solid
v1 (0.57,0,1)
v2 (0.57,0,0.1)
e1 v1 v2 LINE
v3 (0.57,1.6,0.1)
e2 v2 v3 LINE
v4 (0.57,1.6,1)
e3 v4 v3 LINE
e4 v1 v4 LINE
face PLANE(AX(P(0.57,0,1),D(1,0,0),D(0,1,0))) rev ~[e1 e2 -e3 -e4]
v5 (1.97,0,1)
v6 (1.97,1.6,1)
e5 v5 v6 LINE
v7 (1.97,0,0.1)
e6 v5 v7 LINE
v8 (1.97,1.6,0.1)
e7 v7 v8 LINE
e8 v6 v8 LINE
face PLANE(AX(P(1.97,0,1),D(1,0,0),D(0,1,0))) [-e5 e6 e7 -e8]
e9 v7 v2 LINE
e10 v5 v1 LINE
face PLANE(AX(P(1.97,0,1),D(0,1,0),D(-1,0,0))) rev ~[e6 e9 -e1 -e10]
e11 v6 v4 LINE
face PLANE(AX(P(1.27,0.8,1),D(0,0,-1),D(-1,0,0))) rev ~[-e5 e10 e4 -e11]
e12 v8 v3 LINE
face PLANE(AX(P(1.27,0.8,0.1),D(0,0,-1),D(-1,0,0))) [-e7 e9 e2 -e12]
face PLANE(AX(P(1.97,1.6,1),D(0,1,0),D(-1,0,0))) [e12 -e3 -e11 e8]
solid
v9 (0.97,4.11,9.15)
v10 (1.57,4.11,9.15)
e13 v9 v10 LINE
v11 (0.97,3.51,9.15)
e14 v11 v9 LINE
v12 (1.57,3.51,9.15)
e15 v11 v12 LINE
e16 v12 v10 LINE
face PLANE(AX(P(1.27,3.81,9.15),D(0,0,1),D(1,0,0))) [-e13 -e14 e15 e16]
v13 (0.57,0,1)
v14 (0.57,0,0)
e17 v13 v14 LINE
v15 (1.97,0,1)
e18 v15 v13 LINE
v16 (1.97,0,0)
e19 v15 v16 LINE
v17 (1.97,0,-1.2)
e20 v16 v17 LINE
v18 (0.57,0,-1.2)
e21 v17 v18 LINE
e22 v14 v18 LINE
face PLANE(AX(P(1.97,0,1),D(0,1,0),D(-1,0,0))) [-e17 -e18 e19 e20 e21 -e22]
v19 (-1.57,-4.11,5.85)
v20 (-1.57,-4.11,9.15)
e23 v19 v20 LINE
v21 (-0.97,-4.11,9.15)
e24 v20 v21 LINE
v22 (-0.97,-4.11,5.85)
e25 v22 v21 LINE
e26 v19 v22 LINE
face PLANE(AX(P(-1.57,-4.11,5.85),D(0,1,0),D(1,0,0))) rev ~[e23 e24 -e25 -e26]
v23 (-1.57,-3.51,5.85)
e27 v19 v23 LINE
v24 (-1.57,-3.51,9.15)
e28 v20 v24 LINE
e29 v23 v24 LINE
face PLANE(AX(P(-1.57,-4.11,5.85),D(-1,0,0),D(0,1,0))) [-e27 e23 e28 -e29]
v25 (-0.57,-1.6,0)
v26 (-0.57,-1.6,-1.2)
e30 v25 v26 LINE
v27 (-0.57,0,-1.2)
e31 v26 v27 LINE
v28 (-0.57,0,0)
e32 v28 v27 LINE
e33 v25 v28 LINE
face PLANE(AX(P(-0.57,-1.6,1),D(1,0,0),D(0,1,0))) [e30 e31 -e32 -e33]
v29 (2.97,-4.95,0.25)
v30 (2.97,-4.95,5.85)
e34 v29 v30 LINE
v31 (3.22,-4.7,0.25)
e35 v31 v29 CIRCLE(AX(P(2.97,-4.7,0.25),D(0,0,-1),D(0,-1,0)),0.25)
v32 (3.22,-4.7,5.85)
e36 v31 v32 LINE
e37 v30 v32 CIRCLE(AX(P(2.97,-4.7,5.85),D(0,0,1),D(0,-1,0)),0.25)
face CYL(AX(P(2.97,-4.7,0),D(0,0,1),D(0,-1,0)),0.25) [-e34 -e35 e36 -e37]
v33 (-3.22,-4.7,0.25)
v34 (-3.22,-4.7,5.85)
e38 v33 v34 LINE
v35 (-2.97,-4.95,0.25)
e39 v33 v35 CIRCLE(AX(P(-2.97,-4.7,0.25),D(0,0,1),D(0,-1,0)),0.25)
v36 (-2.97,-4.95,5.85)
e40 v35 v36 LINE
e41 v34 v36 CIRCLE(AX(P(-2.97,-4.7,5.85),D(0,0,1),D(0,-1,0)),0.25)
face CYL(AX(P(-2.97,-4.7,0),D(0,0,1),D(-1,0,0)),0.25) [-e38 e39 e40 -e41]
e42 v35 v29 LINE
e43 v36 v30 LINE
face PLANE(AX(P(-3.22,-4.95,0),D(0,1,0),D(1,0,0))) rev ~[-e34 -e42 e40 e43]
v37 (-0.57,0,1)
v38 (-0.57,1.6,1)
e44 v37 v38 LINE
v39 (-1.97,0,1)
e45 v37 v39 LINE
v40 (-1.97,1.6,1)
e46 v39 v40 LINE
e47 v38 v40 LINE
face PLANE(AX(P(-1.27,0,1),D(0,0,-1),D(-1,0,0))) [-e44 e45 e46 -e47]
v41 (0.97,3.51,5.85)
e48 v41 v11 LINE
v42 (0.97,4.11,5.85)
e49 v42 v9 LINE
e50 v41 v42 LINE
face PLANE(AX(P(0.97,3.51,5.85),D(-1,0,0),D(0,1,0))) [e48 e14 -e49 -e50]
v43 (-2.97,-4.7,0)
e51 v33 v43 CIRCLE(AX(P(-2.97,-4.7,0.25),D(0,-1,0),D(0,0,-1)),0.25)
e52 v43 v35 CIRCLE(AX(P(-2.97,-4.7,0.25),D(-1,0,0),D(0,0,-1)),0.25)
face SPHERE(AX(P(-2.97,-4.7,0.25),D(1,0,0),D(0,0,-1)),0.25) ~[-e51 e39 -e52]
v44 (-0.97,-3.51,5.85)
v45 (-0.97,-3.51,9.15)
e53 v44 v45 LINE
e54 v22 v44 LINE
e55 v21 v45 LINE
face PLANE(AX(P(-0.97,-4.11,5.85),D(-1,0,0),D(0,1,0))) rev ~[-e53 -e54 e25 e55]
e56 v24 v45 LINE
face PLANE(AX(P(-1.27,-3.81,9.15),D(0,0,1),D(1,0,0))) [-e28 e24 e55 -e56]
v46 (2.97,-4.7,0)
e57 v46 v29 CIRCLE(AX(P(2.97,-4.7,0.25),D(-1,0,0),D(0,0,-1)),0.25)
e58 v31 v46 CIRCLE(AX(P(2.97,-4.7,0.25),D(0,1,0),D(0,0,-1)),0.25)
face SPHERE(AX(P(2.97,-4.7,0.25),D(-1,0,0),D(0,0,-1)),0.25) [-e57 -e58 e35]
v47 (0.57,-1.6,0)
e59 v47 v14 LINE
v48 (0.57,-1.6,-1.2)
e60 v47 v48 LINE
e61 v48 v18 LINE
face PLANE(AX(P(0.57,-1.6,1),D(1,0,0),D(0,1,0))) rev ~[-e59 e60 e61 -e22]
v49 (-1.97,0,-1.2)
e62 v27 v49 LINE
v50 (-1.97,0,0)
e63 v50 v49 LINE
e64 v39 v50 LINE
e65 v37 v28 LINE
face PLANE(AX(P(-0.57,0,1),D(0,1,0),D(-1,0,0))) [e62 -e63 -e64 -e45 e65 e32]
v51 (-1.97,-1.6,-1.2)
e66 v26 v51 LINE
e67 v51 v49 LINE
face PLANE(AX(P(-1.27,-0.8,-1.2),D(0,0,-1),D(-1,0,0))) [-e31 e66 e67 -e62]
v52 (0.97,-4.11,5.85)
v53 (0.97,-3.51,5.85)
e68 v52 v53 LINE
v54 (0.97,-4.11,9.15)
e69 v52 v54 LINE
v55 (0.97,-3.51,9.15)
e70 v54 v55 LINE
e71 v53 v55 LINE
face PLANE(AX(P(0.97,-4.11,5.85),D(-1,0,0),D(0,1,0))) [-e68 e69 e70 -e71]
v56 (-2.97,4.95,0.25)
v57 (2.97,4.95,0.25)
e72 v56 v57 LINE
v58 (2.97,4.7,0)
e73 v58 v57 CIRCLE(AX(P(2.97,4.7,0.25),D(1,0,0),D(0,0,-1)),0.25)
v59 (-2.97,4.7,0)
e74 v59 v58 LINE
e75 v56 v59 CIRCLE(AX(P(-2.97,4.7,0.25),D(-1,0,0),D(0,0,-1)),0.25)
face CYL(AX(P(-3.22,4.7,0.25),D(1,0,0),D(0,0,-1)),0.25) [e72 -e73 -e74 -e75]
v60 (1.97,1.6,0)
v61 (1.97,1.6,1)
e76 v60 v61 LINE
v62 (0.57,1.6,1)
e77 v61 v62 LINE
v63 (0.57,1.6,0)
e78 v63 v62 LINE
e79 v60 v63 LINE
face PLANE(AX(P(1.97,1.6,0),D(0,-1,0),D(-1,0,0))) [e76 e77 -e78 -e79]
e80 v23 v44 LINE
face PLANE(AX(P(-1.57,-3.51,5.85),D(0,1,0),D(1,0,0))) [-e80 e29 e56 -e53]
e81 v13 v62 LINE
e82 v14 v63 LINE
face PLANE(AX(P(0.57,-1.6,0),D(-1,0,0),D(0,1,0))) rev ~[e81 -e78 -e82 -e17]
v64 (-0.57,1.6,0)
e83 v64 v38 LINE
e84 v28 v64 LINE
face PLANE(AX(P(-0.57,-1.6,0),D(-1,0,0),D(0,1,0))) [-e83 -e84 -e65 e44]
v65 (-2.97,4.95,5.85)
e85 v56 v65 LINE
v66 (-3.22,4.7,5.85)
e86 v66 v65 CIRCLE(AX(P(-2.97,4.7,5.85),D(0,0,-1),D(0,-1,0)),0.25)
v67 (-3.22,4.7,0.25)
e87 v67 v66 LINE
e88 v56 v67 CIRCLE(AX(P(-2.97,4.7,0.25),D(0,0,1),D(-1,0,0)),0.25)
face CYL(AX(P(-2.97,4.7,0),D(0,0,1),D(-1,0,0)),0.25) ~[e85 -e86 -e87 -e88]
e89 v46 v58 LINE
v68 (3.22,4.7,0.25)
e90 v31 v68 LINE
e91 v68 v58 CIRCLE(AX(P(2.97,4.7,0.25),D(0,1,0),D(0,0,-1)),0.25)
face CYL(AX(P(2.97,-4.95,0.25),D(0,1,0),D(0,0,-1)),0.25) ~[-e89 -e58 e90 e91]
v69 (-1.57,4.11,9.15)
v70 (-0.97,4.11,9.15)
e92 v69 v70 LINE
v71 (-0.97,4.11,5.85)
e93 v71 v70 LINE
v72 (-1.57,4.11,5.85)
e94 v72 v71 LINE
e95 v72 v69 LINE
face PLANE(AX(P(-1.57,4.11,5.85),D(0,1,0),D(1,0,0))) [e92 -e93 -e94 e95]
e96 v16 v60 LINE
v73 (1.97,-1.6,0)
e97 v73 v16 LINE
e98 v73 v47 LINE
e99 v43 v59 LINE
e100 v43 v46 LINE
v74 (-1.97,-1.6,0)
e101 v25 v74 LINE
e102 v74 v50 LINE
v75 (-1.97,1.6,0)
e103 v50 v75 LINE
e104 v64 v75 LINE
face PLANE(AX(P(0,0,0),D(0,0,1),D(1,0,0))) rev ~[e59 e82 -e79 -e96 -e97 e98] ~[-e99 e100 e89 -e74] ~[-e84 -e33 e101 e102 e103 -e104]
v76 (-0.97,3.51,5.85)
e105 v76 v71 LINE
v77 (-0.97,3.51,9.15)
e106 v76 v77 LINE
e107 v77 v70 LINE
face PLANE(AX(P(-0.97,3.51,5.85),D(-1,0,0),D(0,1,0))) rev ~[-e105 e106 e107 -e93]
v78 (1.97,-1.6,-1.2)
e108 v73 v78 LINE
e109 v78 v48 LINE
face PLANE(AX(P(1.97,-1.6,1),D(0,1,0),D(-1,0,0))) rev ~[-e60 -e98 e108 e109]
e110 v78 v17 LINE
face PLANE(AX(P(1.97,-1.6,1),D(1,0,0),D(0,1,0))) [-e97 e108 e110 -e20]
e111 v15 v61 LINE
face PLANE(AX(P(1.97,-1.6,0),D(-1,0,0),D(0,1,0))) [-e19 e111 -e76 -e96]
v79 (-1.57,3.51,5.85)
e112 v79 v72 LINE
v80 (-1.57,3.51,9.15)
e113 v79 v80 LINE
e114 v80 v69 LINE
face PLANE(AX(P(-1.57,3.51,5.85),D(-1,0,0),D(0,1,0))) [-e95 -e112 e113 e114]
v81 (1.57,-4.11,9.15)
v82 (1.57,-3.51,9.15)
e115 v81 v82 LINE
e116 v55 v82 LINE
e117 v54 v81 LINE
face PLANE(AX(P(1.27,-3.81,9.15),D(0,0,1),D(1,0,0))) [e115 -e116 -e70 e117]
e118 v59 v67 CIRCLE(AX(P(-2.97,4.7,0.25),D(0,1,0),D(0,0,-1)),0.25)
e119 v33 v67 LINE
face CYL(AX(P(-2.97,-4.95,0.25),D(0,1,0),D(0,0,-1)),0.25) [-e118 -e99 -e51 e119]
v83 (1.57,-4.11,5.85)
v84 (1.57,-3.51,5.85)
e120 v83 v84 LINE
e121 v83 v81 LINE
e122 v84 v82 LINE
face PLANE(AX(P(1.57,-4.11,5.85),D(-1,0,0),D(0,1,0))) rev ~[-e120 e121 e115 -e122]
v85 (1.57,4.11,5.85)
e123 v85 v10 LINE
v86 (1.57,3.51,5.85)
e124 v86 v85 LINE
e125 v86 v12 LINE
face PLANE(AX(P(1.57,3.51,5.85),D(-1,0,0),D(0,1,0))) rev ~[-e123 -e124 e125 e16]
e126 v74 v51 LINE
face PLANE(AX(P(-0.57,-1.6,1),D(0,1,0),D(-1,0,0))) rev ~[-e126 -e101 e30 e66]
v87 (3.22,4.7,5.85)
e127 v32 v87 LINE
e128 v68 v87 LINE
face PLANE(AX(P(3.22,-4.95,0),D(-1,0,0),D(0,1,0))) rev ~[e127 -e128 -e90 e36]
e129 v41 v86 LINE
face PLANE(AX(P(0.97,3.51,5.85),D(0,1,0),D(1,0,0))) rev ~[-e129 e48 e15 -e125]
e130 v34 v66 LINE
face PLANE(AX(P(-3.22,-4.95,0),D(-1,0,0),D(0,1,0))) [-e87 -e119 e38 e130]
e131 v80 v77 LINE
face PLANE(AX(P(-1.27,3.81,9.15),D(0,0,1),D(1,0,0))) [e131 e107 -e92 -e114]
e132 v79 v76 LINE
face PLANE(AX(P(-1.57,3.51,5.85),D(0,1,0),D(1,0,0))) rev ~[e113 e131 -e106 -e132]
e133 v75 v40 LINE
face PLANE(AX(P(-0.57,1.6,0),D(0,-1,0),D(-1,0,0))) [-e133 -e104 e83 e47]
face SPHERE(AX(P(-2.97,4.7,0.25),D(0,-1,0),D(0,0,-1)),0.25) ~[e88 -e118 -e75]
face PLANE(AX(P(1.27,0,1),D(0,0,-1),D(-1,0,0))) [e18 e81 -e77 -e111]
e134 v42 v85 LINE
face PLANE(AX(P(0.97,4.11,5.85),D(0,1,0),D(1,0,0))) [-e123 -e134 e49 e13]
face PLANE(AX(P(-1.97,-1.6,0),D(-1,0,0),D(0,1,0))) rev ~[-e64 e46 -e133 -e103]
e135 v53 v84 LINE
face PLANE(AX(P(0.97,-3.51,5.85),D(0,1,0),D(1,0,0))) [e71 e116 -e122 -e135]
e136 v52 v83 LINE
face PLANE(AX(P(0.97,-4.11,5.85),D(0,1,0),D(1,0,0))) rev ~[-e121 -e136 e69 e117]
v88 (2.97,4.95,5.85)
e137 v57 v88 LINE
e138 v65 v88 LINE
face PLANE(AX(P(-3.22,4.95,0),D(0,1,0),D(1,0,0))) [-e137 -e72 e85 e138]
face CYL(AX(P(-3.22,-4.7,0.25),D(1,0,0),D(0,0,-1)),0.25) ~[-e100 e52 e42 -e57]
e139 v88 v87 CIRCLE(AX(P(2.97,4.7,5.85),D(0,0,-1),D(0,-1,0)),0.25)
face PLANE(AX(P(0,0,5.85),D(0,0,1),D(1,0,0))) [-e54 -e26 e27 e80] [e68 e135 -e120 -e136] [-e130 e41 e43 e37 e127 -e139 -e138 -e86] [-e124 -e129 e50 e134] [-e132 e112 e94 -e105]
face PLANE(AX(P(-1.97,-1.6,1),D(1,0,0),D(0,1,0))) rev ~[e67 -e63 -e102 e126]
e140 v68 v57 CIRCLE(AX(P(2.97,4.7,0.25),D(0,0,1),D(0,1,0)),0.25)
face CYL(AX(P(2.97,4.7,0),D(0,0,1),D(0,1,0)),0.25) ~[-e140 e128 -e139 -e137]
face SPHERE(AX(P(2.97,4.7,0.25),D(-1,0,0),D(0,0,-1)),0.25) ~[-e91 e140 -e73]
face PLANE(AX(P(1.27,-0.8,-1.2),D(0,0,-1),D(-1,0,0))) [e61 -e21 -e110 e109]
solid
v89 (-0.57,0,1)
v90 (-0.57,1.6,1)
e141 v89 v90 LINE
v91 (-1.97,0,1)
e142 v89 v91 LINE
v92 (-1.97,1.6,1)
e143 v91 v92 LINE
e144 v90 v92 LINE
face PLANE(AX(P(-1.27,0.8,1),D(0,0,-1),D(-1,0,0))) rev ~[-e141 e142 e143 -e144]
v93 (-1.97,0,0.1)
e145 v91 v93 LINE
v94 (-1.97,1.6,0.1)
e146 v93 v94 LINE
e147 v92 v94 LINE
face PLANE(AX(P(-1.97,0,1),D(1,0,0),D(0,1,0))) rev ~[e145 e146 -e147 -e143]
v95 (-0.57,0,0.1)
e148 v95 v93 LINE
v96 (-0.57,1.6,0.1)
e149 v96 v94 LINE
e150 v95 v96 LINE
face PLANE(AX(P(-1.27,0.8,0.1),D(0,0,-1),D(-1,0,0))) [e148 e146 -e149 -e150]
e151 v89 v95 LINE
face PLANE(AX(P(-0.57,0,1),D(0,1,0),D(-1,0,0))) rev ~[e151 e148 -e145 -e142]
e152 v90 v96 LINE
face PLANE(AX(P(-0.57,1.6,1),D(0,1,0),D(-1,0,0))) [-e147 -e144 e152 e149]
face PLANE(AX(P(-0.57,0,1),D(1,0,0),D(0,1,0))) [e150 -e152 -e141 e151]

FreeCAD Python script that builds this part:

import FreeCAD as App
import Part
import Sketcher
from FreeCAD import Vector
Q = App.Units.Quantity


def edges_at(feature, points):
    """Names of the edges that pass closest to the given points."""
    edges = feature.Shape.Edges
    near = lambda p: min(range(len(edges)), key=lambda i: edges[i].distToShape(Part.Vertex(*p))[0])
    return sorted({f"Edge{near(p) + 1}" for p in points})


def add_polygon(sketch, points):
    """Adds a closed chain of lines whose ends are joined by coincident constraints."""
    first, n = sketch.GeometryCount, len(points)
    for a, b in zip(points, points[1:] + points[:1]):
        sketch.addGeometry(Part.LineSegment(App.Vector(*a, 0), App.Vector(*b, 0)), False)
    for i in range(n):
        sketch.addConstraint(Sketcher.Constraint("Coincident", first + i, 2, first + (i + 1) % n, 1))

doc = App.newDocument("Part")
params = doc.addObject("Spreadsheet::Sheet", "Params")
for row, (alias, value) in enumerate([
    ("sketch1_height", "9.9 mm"),
    ("sketch1_width", "6.44 mm"),
    ("pad1_length", "5.85 mm"),
    ("sketch2_width", "1.4 mm"),
    ("sketch2_height", "3.2 mm"),
    ("pocket1_length", "1 mm"),
    ("sketch3_width", "1.4 mm"),
    ("sketch3_height", "1.6 mm"),
    ("pad2_length", "2.2 mm"),
    ("fillet_radius", "0.25 mm"),
    ("sketch4_width", "0.6 mm"),
    ("pad3_length", "3.3 mm"),
    ("sketch5_width", "1.4 mm"),
    ("sketch5_height", "1.6 mm"),
    ("pad4_length", "0.9 mm"),
    ("sketch6_width", "1.4 mm"),
    ("sketch6_height", "1.6 mm"),
    ("pad5_length", "0.9 mm"),
], start=1):
    params.set(f"A{row}", alias)
    params.set(f"B{row}", "=" + value)
    params.setAlias(f"B{row}", alias)

body = doc.addObject("PartDesign::Body", "Body")

# Sketch on XY plane
sketch1 = body.newObject("Sketcher::SketchObject", "Sketch")
sketch1.AttachmentSupport = (doc.getObject("XY_Plane"), [""])
sketch1.MapMode = "FlatFace"
add_polygon(sketch1, [(-3, 5), (-3, -5), (3, -5), (3, 5)])  # lines 0-3
sketch1.addConstraint([
    Sketcher.Constraint("Vertical", 0),
    Sketcher.Constraint("Horizontal", 1),
    Sketcher.Constraint("Vertical", 2),
    Sketcher.Constraint("Horizontal", 3),
    Sketcher.Constraint("Symmetric", 0, 2, 2, 2, -1, 1),
    Sketcher.Constraint("DistanceY", 0, 2, 0, 1, Q("9.9 mm")),
    Sketcher.Constraint("DistanceX", 1, 1, 1, 2, Q("6.44 mm")),
])
sketch1.setExpression("Constraints[9]", "Params.sketch1_height")
sketch1.setExpression("Constraints[10]", "Params.sketch1_width")
pad1 = body.newObject("PartDesign::Pad", "Pad")
pad1.Profile = sketch1
pad1.setExpression("Length", "Params.pad1_length")

# Sketch on XY plane
sketch2 = body.newObject("Sketcher::SketchObject", "Sketch001")
sketch2.AttachmentSupport = (doc.getObject("XY_Plane"), [""])
sketch2.MapMode = "FlatFace"
add_polygon(sketch2, [(2, 1.6), (2, -1.6), (0.6, -1.6), (0.6, 1.6)])  # lines 0-3
add_polygon(sketch2, [(-0.6, 1.6), (-0.6, -1.6), (-2, -1.6), (-2, 1.6)])  # lines 4-7
sketch2.addConstraint([
    Sketcher.Constraint("Vertical", 0),
    Sketcher.Constraint("Horizontal", 1),
    Sketcher.Constraint("Vertical", 2),
    Sketcher.Constraint("Horizontal", 3),
    Sketcher.Constraint("Vertical", 4),
    Sketcher.Constraint("Horizontal", 5),
    Sketcher.Constraint("Vertical", 6),
    Sketcher.Constraint("Horizontal", 7),
    Sketcher.Constraint("Symmetric", 2, 2, 4, 2, -1, 1),
    Sketcher.Constraint("Symmetric", 0, 2, 6, 2, -1, 1),
    Sketcher.Constraint("Horizontal", 1, 2, 4, 2),
    Sketcher.Constraint("DistanceX", 1, 2, 1, 1, Q("1.4 mm")),
    Sketcher.Constraint("DistanceY", 0, 2, 0, 1, Q("3.2 mm")),
    Sketcher.Constraint("DistanceX", -1, 1, 0, 2, Q("1.97 mm")),
])
sketch2.setExpression("Constraints[19]", "Params.sketch2_width")
sketch2.setExpression("Constraints[20]", "Params.sketch2_height")
pocket1 = body.newObject("PartDesign::Pocket", "Pocket")
pocket1.Profile = sketch2
pocket1.setExpression("Length", "Params.pocket1_length")
pocket1.Reversed = True

# Sketch on XY plane
sketch3 = body.newObject("Sketcher::SketchObject", "Sketch002")
sketch3.AttachmentSupport = (doc.getObject("XY_Plane"), [""])
sketch3.MapMode = "FlatFace"
sketch3.AttachmentOffset = App.Placement(Vector(0, 0, 1), App.Rotation())
add_polygon(sketch3, [(2, 0), (2, -1.6), (0.6, -1.6), (0.6, 0)])  # lines 0-3
add_polygon(sketch3, [(-0.6, 0), (-0.6, -1.6), (-2, -1.6), (-2, 0)])  # lines 4-7
sketch3.addConstraint([
    Sketcher.Constraint("Vertical", 0),
    Sketcher.Constraint("Horizontal", 1),
    Sketcher.Constraint("Vertical", 2),
    Sketcher.Constraint("Horizontal", 3),
    Sketcher.Constraint("Vertical", 4),
    Sketcher.Constraint("Horizontal", 5),
    Sketcher.Constraint("Vertical", 6),
    Sketcher.Constraint("Horizontal", 7),
    Sketcher.Constraint("Symmetric", 3, 2, 6, 2, -1, 1),
    Sketcher.Constraint("Symmetric", 1, 2, 4, 2, -2),
    Sketcher.Constraint("PointOnObject", 2, 2, -1),
    Sketcher.Constraint("DistanceX", 1, 2, 1, 1, Q("1.4 mm")),
    Sketcher.Constraint("DistanceY", 0, 2, 0, 1, Q("1.6 mm")),
    Sketcher.Constraint("DistanceX", -1, 1, 0, 2, Q("1.97 mm")),
])
sketch3.setExpression("Constraints[19]", "Params.sketch3_width")
sketch3.setExpression("Constraints[20]", "Params.sketch3_height")
pad2 = body.newObject("PartDesign::Pad", "Pad001")
pad2.Profile = sketch3
pad2.setExpression("Length", "Params.pad2_length")
pad2.Reversed = True
doc.recompute()

fillet = body.newObject("PartDesign::Fillet", "Fillet")
fillet.Base = (pad2, edges_at(pad2, [
    (0, -4.95, 0),
    (-3.22, 0, 0),
    (0, 4.95, 0),
    (3.22, 0, 0),
    (3.22, -4.95, 2.925),
    (-3.22, -4.95, 2.925),
    (-3.22, 4.95, 2.925),
    (3.22, 4.95, 2.925),
]))
fillet.setExpression("Radius", "Params.fillet_radius")

# Sketch on XY plane
sketch4 = body.newObject("Sketcher::SketchObject", "Sketch003")
sketch4.AttachmentSupport = (doc.getObject("XY_Plane"), [""])
sketch4.MapMode = "FlatFace"
sketch4.AttachmentOffset = App.Placement(Vector(0, 0, 5.85), App.Rotation())
add_polygon(sketch4, [(1, -3.5), (1, -4.1), (1.6, -4.1), (1.6, -3.5)])  # lines 0-3
add_polygon(sketch4, [(-1.6, -3.5), (-1.6, -4.1), (-1, -4.1), (-1, -3.5)])  # lines 4-7
add_polygon(sketch4, [(-1.6, 4.1), (-1.6, 3.5), (-1, 3.5), (-1, 4.1)])  # lines 8-11
add_polygon(sketch4, [(1, 4.1), (1, 3.5), (1.6, 3.5), (1.6, 4.1)])  # lines 12-15
sketch4.addConstraint([
    Sketcher.Constraint("Vertical", 0),
    Sketcher.Constraint("Horizontal", 1),
    Sketcher.Constraint("Vertical", 2),
    Sketcher.Constraint("Horizontal", 3),
    Sketcher.Constraint("Vertical", 4),
    Sketcher.Constraint("Horizontal", 5),
    Sketcher.Constraint("Vertical", 6),
    Sketcher.Constraint("Horizontal", 7),
    Sketcher.Constraint("Vertical", 8),
    Sketcher.Constraint("Horizontal", 9),
    Sketcher.Constraint("Vertical", 10),
    Sketcher.Constraint("Horizontal", 11),
    Sketcher.Constraint("Vertical", 12),
    Sketcher.Constraint("Horizontal", 13),
    Sketcher.Constraint("Vertical", 14),
    Sketcher.Constraint("Horizontal", 15),
    Sketcher.Constraint("Symmetric", 2, 2, 8, 2, -1, 1),
    Sketcher.Constraint("Symmetric", 0, 2, 10, 2, -1, 1),
    Sketcher.Constraint("Symmetric", 6, 2, 12, 2, -1, 1),
    Sketcher.Constraint("Symmetric", 4, 2, 14, 2, -1, 1),
    Sketcher.Constraint("Symmetric", 1, 2, 4, 2, -2),
    Sketcher.Constraint("Symmetric", 3, 2, 6, 2, -2),
    Sketcher.Constraint("Equal", 15, 0),
    Sketcher.Constraint("DistanceX", 1, 1, 1, 2, Q("0.6 mm")),
    Sketcher.Constraint("DistanceX", -1, 1, 0, 2, Q("0.97 mm")),
    Sketcher.Constraint("DistanceY", 0, 2, -1, 1, Q("4.11 mm")),
])
sketch4.setExpression("Constraints[39]", "Params.sketch4_width")
pad3 = body.newObject("PartDesign::Pad", "Pad002")
pad3.Profile = sketch4
pad3.setExpression("Length", "Params.pad3_length")
body2 = doc.addObject("PartDesign::Body", "Body001")

# Sketch on XY plane
sketch5 = body2.newObject("Sketcher::SketchObject", "Sketch004")
sketch5.AttachmentSupport = (doc.getObject("XY_Plane001"), [""])
sketch5.MapMode = "FlatFace"
sketch5.AttachmentOffset = App.Placement(Vector(0, 0, 1), App.Rotation())
add_polygon(sketch5, [(2, 1.6), (2, 0), (0.6, 0), (0.6, 1.6)])  # lines 0-3
sketch5.addConstraint([
    Sketcher.Constraint("Vertical", 0),
    Sketcher.Constraint("Horizontal", 1),
    Sketcher.Constraint("Vertical", 2),
    Sketcher.Constraint("Horizontal", 3),
    Sketcher.Constraint("PointOnObject", 0, 2, -1),
    Sketcher.Constraint("DistanceX", 1, 2, 1, 1, Q("1.4 mm")),
    Sketcher.Constraint("DistanceY", 0, 2, 0, 1, Q("1.6 mm")),
    Sketcher.Constraint("DistanceX", -1, 1, 0, 2, Q("1.97 mm")),
])
sketch5.setExpression("Constraints[9]", "Params.sketch5_width")
sketch5.setExpression("Constraints[10]", "Params.sketch5_height")
pad4 = body2.newObject("PartDesign::Pad", "Pad003")
pad4.Profile = sketch5
pad4.setExpression("Length", "Params.pad4_length")
pad4.Reversed = True
body3 = doc.addObject("PartDesign::Body", "Body002")

# Sketch on XY plane
sketch6 = body3.newObject("Sketcher::SketchObject", "Sketch005")
sketch6.AttachmentSupport = (doc.getObject("XY_Plane002"), [""])
sketch6.MapMode = "FlatFace"
sketch6.AttachmentOffset = App.Placement(Vector(0, 0, 1), App.Rotation())
add_polygon(sketch6, [(-0.6, 1.6), (-0.6, 0), (-2, 0), (-2, 1.6)])  # lines 0-3
sketch6.addConstraint([
    Sketcher.Constraint("Vertical", 0),
    Sketcher.Constraint("Horizontal", 1),
    Sketcher.Constraint("Vertical", 2),
    Sketcher.Constraint("Horizontal", 3),
    Sketcher.Constraint("PointOnObject", 0, 2, -1),
    Sketcher.Constraint("DistanceX", 1, 2, 1, 1, Q("1.4 mm")),
    Sketcher.Constraint("DistanceY", 0, 2, 0, 1, Q("1.6 mm")),
    Sketcher.Constraint("DistanceX", 0, 2, -1, 1, Q("0.57 mm")),
])
sketch6.setExpression("Constraints[9]", "Params.sketch6_width")
sketch6.setExpression("Constraints[10]", "Params.sketch6_height")
pad5 = body3.newObject("PartDesign::Pad", "Pad004")
pad5.Profile = sketch6
pad5.setExpression("Length", "Params.pad5_length")
pad5.Reversed = True

doc.recompute()
